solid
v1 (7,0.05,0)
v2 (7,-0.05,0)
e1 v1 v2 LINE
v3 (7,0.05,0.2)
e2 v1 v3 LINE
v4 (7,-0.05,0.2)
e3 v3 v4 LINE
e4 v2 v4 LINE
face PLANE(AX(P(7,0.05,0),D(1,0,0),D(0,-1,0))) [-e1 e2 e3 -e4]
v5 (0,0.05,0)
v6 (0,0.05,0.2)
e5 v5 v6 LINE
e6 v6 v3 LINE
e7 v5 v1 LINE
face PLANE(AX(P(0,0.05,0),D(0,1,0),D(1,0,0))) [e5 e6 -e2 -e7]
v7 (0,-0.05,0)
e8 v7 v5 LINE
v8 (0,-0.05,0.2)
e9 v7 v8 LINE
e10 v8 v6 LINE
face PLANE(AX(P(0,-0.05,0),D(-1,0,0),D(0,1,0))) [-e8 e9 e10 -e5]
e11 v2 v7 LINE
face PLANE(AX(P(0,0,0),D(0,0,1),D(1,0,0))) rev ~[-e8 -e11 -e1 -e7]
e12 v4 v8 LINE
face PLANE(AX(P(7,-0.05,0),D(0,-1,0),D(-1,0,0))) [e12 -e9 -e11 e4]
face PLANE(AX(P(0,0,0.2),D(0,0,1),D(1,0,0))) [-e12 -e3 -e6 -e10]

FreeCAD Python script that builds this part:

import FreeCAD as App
import Part
import Sketcher

V = App.Vector
Q = App.Units.Quantity


def add_polygon(sketch, points):
    """Adds a closed chain of lines whose ends are joined by coincident constraints."""
    first, n = sketch.GeometryCount, len(points)
    for a, b in zip(points, points[1:] + points[:1]):
        sketch.addGeometry(Part.LineSegment(App.Vector(*a, 0), App.Vector(*b, 0)), False)
    for i in range(n):
        sketch.addConstraint(Sketcher.Constraint("Coincident", first + i, 2, first + (i + 1) % n, 1))

doc = App.newDocument("Part")
body = doc.addObject("PartDesign::Body", "Body")

# Sketch on XY plane
sketch1 = body.newObject("Sketcher::SketchObject", "Sketch")
sketch1.AttachmentSupport = (doc.getObject("XY_Plane"), [""])
sketch1.MapMode = "FlatFace"
add_polygon(sketch1, [(7, 0.05), (0, 0.05), (0, -0.05), (7, -0.05)])  # lines 0-3
sketch1.addConstraint(Sketcher.Constraint("Horizontal", 0))
sketch1.addConstraint(Sketcher.Constraint("Vertical", 1))
sketch1.addConstraint(Sketcher.Constraint("Horizontal", 2))
sketch1.addConstraint(Sketcher.Constraint("Vertical", 3))
sketch1.addConstraint(Sketcher.Constraint("Symmetric", 0, 2, 1, 2, -1, 1))
sketch1.addConstraint(Sketcher.Constraint("DistanceX", 0, 2, 0, 1, Q("7 mm")))
sketch1.addConstraint(Sketcher.Constraint("DistanceY", 1, 2, 1, 1, Q("0.1 mm")))
pad1 = body.newObject("PartDesign::Pad", "Pad")
pad1.Profile = sketch1
pad1.Length = 0.2

doc.recompute()
